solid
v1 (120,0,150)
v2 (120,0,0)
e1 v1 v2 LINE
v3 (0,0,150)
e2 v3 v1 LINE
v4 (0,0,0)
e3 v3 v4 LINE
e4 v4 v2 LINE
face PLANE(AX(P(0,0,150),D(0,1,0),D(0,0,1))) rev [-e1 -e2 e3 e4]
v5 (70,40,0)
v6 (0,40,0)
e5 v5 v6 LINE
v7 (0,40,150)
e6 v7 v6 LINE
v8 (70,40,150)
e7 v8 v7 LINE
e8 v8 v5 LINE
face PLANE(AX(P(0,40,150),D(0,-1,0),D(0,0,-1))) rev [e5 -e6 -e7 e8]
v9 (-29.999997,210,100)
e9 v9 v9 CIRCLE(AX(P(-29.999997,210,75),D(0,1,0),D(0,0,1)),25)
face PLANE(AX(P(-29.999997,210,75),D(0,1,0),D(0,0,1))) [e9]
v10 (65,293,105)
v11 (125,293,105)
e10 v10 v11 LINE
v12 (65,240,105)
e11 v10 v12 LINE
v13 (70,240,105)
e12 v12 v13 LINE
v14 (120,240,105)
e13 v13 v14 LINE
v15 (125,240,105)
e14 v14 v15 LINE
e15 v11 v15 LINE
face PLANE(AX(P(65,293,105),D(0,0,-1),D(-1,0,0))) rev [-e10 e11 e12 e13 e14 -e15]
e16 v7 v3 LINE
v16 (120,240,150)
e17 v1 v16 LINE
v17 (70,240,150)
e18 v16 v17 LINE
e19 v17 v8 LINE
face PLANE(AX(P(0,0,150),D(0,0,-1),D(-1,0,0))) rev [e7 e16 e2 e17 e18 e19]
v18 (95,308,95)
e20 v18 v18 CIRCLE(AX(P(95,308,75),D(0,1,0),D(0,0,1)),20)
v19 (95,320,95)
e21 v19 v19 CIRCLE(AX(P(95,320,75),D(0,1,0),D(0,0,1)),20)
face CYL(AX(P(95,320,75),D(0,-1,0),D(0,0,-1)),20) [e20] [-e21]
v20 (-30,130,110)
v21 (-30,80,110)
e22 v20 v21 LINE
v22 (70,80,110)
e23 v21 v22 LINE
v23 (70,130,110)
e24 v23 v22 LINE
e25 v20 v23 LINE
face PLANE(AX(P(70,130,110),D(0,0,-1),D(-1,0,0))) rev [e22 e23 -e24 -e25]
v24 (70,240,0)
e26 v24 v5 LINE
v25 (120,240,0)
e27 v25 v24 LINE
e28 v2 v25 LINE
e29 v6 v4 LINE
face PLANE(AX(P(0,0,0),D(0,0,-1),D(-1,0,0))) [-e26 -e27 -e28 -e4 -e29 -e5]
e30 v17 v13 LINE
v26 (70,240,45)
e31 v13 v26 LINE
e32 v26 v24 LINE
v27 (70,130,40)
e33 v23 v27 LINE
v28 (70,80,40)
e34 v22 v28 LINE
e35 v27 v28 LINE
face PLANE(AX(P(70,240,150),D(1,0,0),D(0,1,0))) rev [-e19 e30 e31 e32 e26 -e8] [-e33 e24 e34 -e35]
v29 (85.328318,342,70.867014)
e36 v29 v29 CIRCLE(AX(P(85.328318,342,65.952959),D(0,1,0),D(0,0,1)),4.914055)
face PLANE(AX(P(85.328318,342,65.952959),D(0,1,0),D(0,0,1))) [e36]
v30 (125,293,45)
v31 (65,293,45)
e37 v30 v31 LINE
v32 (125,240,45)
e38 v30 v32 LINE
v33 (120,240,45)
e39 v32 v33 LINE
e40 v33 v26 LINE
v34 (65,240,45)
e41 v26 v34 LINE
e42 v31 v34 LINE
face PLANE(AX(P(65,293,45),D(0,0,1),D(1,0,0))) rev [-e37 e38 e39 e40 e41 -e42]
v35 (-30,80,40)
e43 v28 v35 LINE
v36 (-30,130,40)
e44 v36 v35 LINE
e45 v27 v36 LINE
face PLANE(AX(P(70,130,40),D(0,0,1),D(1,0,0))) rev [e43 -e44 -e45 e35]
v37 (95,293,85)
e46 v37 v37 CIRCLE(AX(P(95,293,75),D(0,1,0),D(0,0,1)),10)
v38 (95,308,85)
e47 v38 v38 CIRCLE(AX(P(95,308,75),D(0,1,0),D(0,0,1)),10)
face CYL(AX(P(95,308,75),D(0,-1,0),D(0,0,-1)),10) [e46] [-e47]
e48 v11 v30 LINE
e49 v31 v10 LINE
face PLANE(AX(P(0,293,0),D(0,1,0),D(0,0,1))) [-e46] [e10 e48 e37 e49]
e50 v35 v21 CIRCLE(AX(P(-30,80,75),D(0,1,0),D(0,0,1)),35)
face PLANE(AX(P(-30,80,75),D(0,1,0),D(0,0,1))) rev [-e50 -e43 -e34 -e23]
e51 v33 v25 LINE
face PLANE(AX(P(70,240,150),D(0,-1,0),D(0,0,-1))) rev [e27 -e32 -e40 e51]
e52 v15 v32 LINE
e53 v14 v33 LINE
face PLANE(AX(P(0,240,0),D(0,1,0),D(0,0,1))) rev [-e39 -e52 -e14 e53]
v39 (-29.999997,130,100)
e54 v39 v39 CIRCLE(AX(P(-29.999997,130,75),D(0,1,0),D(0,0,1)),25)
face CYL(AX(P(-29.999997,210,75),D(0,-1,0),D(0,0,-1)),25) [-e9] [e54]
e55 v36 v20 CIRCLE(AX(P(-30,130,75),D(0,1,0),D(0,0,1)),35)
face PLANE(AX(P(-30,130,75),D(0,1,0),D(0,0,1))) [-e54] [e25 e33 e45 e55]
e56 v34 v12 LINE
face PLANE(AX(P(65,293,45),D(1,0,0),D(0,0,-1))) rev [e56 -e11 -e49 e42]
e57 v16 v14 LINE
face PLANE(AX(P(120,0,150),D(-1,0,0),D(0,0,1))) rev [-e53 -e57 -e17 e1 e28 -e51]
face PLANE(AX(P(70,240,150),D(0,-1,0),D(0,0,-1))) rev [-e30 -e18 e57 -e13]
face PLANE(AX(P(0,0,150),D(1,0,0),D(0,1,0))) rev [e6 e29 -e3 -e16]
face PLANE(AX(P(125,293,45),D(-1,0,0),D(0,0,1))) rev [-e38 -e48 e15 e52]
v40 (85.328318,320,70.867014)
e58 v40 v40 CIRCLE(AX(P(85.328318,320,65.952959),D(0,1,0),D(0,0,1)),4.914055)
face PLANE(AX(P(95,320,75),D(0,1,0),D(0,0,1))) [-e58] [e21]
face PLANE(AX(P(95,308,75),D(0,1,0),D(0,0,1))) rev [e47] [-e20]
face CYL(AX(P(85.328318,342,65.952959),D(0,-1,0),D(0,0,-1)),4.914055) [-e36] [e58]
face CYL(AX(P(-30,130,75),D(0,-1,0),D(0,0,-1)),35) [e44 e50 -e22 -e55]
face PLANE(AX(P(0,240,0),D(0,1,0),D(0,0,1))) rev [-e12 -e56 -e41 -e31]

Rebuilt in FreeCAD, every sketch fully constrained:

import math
import FreeCAD as App
import Part
import Sketcher
Q = App.Units.Quantity

doc = App.newDocument("Part")
body = doc.addObject("PartDesign::Body", "Body")

# Sketch on XY plane
sketch1 = body.newObject("Sketcher::SketchObject", "Sketch")
sketch1.AttachmentSupport = (doc.getObject("XY_Plane"), [""])
sketch1.MapMode = "FlatFace"
sketch1.addGeometry(Part.LineSegment(App.Vector(0, 0, 0), App.Vector(120, 0, 0)), False)
sketch1.addGeometry(Part.LineSegment(App.Vector(120, 0, 0), App.Vector(120, 240, 0)), False)
sketch1.addGeometry(Part.LineSegment(App.Vector(120, 240, 0), App.Vector(70, 240, 0)), False)
sketch1.addGeometry(Part.LineSegment(App.Vector(70, 240, 0), App.Vector(70, 40, 0)), False)
sketch1.addGeometry(Part.LineSegment(App.Vector(70, 40, 0), App.Vector(0, 40, 0)), False)
sketch1.addGeometry(Part.LineSegment(App.Vector(0, 40, 0), App.Vector(0, 0, 0)), False)
sketch1.addConstraint(Sketcher.Constraint("Coincident", 0, 2, 1, 1))
sketch1.addConstraint(Sketcher.Constraint("Coincident", 1, 2, 2, 1))
sketch1.addConstraint(Sketcher.Constraint("Coincident", 2, 2, 3, 1))
sketch1.addConstraint(Sketcher.Constraint("Coincident", 3, 2, 4, 1))
sketch1.addConstraint(Sketcher.Constraint("Coincident", 4, 2, 5, 1))
sketch1.addConstraint(Sketcher.Constraint("Coincident", 5, 2, 0, 1))
sketch1.addConstraint(Sketcher.Constraint("Horizontal", 0))
sketch1.addConstraint(Sketcher.Constraint("Vertical", 1))
sketch1.addConstraint(Sketcher.Constraint("Horizontal", 2))
sketch1.addConstraint(Sketcher.Constraint("Vertical", 3))
sketch1.addConstraint(Sketcher.Constraint("Horizontal", 4))
sketch1.addConstraint(Sketcher.Constraint("Vertical", 5))
sketch1.addConstraint(Sketcher.Constraint("Coincident", 5, 2, -1, 1))
sketch1.addConstraint(Sketcher.Constraint("DistanceX", 0, 1, 0, 2, Q("120 mm")))
sketch1.addConstraint(Sketcher.Constraint("DistanceX", 2, 2, 2, 1, Q("50 mm")))
sketch1.addConstraint(Sketcher.Constraint("DistanceY", 1, 1, 1, 2, Q("240 mm")))
sketch1.addConstraint(Sketcher.Constraint("DistanceY", 3, 2, 3, 1, Q("200 mm")))
pad1 = body.newObject("PartDesign::Pad", "Pad")
pad1.Profile = sketch1
pad1.Length = 150

# Sketch on XZ plane
sketch2 = body.newObject("Sketcher::SketchObject", "Sketch001")
sketch2.AttachmentSupport = (doc.getObject("XZ_Plane"), [""])
sketch2.MapMode = "FlatFace"
sketch2.AttachmentOffset = App.Placement(App.Vector(0, 0, -80), App.Rotation())
sketch2.addGeometry(Part.LineSegment(App.Vector(70, 40, 0), App.Vector(-30, 40, 0)), False)
sketch2.addGeometry(Part.ArcOfCircle(Part.Circle(App.Vector(-30, 75, 0), App.Vector(0, 0, 1), 35), math.radians(90), math.radians(270)), False)
sketch2.addGeometry(Part.LineSegment(App.Vector(-30, 110, 0), App.Vector(70, 110, 0)), False)
sketch2.addGeometry(Part.LineSegment(App.Vector(70, 110, 0), App.Vector(70, 40, 0)), False)
sketch2.addConstraint(Sketcher.Constraint("Tangent", 0, 2, 1, 2))
sketch2.addConstraint(Sketcher.Constraint("Tangent", 1, 1, 2, 1))
sketch2.addConstraint(Sketcher.Constraint("Coincident", 2, 2, 3, 1))
sketch2.addConstraint(Sketcher.Constraint("Coincident", 3, 2, 0, 1))
sketch2.addConstraint(Sketcher.Constraint("Horizontal", 0))
sketch2.addConstraint(Sketcher.Constraint("Horizontal", 2))
sketch2.addConstraint(Sketcher.Constraint("Vertical", 3))
sketch2.addConstraint(Sketcher.Constraint("Radius", 1, Q("35 mm")))
sketch2.addConstraint(Sketcher.Constraint("DistanceX", 0, 2, 0, 1, Q("100 mm")))
sketch2.addConstraint(Sketcher.Constraint("DistanceX", 1, 3, -1, 1, Q("30 mm")))
sketch2.addConstraint(Sketcher.Constraint("DistanceY", -1, 1, 1, 3, Q("75 mm")))
pad2 = body.newObject("PartDesign::Pad", "Pad001")
pad2.Profile = sketch2
pad2.Length = 50
pad2.Reversed = True

# Sketch on XZ plane
sketch3 = body.newObject("Sketcher::SketchObject", "Sketch002")
sketch3.AttachmentSupport = (doc.getObject("XZ_Plane"), [""])
sketch3.MapMode = "FlatFace"
sketch3.AttachmentOffset = App.Placement(App.Vector(0, 0, -130), App.Rotation())
sketch3.addGeometry(Part.Circle(App.Vector(-29.999997, 75, 0), App.Vector(0, 0, 1), 25), False)
sketch3.addConstraint(Sketcher.Constraint("Diameter", 0, Q("50 mm")))
sketch3.addConstraint(Sketcher.Constraint("DistanceY", -1, 1, 0, 3, Q("75 mm")))
sketch3.addConstraint(Sketcher.Constraint("DistanceX", 0, 3, -1, 1, Q("29.999997 mm")))
pad3 = body.newObject("PartDesign::Pad", "Pad002")
pad3.Profile = sketch3
pad3.Length = 80
pad3.Reversed = True

# Sketch on XZ plane
sketch4 = body.newObject("Sketcher::SketchObject", "Sketch003")
sketch4.AttachmentSupport = (doc.getObject("XZ_Plane"), [""])
sketch4.MapMode = "FlatFace"
sketch4.AttachmentOffset = App.Placement(App.Vector(0, 0, -240), App.Rotation())
sketch4.addGeometry(Part.LineSegment(App.Vector(65, 45, 0), App.Vector(65, 105, 0)), False)
sketch4.addGeometry(Part.LineSegment(App.Vector(65, 105, 0), App.Vector(125, 105, 0)), False)
sketch4.addGeometry(Part.LineSegment(App.Vector(125, 105, 0), App.Vector(125, 45, 0)), False)
sketch4.addGeometry(Part.LineSegment(App.Vector(125, 45, 0), App.Vector(65, 45, 0)), False)
sketch4.addConstraint(Sketcher.Constraint("Coincident", 0, 2, 1, 1))
sketch4.addConstraint(Sketcher.Constraint("Coincident", 1, 2, 2, 1))
sketch4.addConstraint(Sketcher.Constraint("Coincident", 2, 2, 3, 1))
sketch4.addConstraint(Sketcher.Constraint("Coincident", 3, 2, 0, 1))
sketch4.addConstraint(Sketcher.Constraint("Vertical", 0))
sketch4.addConstraint(Sketcher.Constraint("Horizontal", 1))
sketch4.addConstraint(Sketcher.Constraint("Vertical", 2))
sketch4.addConstraint(Sketcher.Constraint("Horizontal", 3))
sketch4.addConstraint(Sketcher.Constraint("Equal", 3, 0))
sketch4.addConstraint(Sketcher.Constraint("DistanceX", 1, 1, 1, 2, Q("60 mm")))
sketch4.addConstraint(Sketcher.Constraint("DistanceX", -1, 1, 0, 2, Q("65 mm")))
sketch4.addConstraint(Sketcher.Constraint("DistanceY", -1, 1, 0, 2, Q("105 mm")))
pad4 = body.newObject("PartDesign::Pad", "Pad003")
pad4.Profile = sketch4
pad4.Length = 53
pad4.Reversed = True

# Sketch on XZ plane
sketch5 = body.newObject("Sketcher::SketchObject", "Sketch004")
sketch5.AttachmentSupport = (doc.getObject("XZ_Plane"), [""])
sketch5.MapMode = "FlatFace"
sketch5.AttachmentOffset = App.Placement(App.Vector(0, 0, -293), App.Rotation())
sketch5.addGeometry(Part.Circle(App.Vector(95, 75, 0), App.Vector(0, 0, 1), 10), False)
sketch5.addConstraint(Sketcher.Constraint("Diameter", 0, Q("20 mm")))
sketch5.addConstraint(Sketcher.Constraint("DistanceX", -1, 1, 0, 3, Q("95 mm")))
sketch5.addConstraint(Sketcher.Constraint("DistanceY", -1, 1, 0, 3, Q("75 mm")))
pad5 = body.newObject("PartDesign::Pad", "Pad004")
pad5.Profile = sketch5
pad5.Length = 15
pad5.Reversed = True

# Sketch on XZ plane
sketch6 = body.newObject("Sketcher::SketchObject", "Sketch005")
sketch6.AttachmentSupport = (doc.getObject("XZ_Plane"), [""])
sketch6.MapMode = "FlatFace"
sketch6.AttachmentOffset = App.Placement(App.Vector(0, 0, -308), App.Rotation())
sketch6.addGeometry(Part.Circle(App.Vector(95, 75, 0), App.Vector(0, 0, 1), 20), False)
sketch6.addConstraint(Sketcher.Constraint("Diameter", 0, Q("40 mm")))
sketch6.addConstraint(Sketcher.Constraint("DistanceX", -1, 1, 0, 3, Q("95 mm")))
sketch6.addConstraint(Sketcher.Constraint("DistanceY", -1, 1, 0, 3, Q("75 mm")))
pad6 = body.newObject("PartDesign::Pad", "Pad005")
pad6.Profile = sketch6
pad6.Length = 12
pad6.Reversed = True

# Sketch on XZ plane
sketch7 = body.newObject("Sketcher::SketchObject", "Sketch006")
sketch7.AttachmentSupport = (doc.getObject("XZ_Plane"), [""])
sketch7.MapMode = "FlatFace"
sketch7.AttachmentOffset = App.Placement(App.Vector(0, 0, -320), App.Rotation())
sketch7.addGeometry(Part.Circle(App.Vector(85.328318, 65.952959, 0), App.Vector(0, 0, 1), 4.914055), False)
sketch7.addConstraint(Sketcher.Constraint("Diameter", 0, Q("9.82811 mm")))
sketch7.addConstraint(Sketcher.Constraint("DistanceX", -1, 1, 0, 3, Q("85.328318 mm")))
sketch7.addConstraint(Sketcher.Constraint("DistanceY", -1, 1, 0, 3, Q("65.952959 mm")))
pad7 = body.newObject("PartDesign::Pad", "Pad006")
pad7.Profile = sketch7
pad7.Length = 22
pad7.Reversed = True

doc.recompute()
